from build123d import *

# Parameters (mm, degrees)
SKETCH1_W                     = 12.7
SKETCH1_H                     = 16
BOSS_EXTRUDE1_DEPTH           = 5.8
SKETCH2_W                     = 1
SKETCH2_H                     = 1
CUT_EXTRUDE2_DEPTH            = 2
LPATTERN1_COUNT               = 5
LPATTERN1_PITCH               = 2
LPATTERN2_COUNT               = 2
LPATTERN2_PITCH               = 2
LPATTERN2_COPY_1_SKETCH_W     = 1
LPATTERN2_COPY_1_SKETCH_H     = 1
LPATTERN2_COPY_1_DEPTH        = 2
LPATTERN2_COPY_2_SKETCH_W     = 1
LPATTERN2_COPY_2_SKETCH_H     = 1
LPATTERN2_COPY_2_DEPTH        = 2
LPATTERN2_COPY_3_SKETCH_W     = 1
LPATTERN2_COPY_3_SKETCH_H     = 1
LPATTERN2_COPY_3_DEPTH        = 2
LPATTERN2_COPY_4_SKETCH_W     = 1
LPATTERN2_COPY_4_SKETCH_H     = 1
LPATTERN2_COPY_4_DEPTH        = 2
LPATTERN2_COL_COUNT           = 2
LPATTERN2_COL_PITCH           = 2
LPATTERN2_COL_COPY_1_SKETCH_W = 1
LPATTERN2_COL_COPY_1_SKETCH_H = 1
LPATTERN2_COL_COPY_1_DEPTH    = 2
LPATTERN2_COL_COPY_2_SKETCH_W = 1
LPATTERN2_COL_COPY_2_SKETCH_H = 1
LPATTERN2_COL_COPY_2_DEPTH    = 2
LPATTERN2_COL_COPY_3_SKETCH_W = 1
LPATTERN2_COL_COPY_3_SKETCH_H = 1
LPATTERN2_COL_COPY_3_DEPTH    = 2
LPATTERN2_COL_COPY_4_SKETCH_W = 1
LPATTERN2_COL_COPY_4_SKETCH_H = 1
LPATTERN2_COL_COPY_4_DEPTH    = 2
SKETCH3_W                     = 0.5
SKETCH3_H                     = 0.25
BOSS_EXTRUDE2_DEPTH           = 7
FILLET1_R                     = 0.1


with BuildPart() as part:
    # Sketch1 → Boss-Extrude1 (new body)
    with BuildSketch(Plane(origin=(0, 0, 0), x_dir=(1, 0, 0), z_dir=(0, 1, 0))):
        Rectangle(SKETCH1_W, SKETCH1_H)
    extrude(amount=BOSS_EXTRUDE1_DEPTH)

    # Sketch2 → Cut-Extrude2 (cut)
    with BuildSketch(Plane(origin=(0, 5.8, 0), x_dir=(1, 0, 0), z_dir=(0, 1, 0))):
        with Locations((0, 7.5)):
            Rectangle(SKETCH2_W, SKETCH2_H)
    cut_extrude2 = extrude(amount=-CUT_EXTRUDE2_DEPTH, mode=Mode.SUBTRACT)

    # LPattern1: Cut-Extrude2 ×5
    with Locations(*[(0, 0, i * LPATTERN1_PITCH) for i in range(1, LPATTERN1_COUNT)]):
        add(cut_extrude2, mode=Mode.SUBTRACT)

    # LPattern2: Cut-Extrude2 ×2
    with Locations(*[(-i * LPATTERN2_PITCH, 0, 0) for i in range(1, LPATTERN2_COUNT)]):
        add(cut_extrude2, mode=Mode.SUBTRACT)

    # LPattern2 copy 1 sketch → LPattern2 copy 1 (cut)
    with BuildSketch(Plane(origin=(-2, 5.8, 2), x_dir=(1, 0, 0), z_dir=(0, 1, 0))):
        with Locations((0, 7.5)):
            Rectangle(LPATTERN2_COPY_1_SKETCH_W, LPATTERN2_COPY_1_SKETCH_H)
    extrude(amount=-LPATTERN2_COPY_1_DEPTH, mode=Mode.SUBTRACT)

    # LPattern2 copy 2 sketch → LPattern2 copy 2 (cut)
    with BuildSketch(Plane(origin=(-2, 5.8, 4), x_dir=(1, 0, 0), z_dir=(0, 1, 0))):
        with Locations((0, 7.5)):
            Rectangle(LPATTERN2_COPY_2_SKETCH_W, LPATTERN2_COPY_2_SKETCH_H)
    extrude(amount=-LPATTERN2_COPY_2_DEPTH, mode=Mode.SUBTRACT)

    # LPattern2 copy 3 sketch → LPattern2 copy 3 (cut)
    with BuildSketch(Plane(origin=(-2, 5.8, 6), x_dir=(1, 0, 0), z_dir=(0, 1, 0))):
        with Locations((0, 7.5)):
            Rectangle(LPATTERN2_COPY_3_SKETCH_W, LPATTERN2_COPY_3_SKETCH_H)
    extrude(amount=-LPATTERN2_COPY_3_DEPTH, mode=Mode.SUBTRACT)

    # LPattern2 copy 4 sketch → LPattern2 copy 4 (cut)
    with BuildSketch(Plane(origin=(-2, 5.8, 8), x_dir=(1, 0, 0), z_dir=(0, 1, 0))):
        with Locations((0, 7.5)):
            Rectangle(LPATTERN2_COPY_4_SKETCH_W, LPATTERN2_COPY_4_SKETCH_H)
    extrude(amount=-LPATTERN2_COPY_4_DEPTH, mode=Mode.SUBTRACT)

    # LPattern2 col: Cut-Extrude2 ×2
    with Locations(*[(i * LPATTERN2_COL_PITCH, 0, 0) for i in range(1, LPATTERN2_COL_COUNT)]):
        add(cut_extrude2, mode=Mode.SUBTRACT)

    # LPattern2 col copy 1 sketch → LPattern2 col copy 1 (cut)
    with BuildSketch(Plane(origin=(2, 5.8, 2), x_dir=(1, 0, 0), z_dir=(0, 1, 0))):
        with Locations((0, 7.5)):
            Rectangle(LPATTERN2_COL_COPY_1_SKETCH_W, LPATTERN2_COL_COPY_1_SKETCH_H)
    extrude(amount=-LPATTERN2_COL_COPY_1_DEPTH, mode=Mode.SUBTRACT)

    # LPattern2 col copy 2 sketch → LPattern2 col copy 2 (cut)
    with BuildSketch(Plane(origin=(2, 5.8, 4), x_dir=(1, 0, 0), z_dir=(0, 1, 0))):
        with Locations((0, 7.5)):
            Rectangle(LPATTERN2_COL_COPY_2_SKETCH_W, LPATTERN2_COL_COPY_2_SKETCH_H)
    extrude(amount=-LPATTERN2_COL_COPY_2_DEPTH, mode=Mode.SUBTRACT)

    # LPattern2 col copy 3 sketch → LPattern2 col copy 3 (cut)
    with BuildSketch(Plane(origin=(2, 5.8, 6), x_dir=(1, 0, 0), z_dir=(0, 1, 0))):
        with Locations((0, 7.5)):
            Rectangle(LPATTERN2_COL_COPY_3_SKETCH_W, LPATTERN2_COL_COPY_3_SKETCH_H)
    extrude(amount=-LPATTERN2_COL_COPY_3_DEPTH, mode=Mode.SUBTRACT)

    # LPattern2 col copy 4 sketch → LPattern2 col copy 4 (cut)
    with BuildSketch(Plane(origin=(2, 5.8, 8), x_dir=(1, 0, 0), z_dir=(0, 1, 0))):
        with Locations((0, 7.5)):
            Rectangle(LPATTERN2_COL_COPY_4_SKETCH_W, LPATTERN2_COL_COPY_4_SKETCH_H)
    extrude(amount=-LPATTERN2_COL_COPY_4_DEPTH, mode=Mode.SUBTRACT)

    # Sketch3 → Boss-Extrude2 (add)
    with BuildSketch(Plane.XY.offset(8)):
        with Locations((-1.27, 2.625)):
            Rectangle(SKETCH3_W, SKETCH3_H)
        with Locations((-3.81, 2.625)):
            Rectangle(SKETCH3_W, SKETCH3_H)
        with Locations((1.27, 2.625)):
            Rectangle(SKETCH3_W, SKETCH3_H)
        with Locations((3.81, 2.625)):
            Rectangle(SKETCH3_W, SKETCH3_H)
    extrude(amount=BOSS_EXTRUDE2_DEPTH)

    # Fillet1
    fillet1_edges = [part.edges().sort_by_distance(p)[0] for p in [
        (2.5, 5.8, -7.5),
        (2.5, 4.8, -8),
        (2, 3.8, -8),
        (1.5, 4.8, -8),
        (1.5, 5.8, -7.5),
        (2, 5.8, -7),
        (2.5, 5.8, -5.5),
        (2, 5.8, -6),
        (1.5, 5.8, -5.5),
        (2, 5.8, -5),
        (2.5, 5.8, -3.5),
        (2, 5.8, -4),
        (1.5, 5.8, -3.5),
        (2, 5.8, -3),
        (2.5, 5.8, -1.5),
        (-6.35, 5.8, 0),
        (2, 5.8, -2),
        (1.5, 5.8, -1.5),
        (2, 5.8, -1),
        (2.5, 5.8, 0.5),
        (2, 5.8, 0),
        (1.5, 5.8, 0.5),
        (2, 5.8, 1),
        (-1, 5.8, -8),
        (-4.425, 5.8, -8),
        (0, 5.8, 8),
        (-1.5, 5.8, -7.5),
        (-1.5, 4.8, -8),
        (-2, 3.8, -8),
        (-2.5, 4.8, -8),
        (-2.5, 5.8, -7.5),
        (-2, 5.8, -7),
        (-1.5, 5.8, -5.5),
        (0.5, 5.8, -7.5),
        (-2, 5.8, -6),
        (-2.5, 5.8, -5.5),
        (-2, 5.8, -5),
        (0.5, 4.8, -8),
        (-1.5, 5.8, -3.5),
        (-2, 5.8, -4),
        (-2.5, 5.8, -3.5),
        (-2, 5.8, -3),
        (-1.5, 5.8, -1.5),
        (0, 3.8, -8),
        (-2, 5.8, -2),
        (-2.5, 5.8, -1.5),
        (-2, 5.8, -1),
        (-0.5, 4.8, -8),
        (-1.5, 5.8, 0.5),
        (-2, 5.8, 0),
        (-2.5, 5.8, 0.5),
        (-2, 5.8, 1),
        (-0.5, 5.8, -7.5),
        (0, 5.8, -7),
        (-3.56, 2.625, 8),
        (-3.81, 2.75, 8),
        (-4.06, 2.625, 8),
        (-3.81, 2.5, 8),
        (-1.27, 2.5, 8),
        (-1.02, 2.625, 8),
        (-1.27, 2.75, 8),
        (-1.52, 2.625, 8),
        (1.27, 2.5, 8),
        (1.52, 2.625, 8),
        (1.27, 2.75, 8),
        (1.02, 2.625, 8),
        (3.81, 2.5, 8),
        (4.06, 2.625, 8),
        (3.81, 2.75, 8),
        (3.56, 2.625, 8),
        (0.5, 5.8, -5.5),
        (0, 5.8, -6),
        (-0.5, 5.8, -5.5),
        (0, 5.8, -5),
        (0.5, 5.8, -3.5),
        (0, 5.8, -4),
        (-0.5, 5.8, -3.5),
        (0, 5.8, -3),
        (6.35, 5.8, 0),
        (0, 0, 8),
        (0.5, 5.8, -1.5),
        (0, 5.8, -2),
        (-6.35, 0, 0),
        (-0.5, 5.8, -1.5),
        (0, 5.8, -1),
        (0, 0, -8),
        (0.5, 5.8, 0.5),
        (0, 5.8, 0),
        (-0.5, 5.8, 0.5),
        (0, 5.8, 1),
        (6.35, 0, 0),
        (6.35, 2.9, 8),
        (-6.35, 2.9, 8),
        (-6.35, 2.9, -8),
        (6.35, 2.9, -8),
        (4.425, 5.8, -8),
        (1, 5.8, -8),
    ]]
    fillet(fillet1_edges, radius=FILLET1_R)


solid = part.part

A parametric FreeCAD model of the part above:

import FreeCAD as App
import Part
import Sketcher

V = App.Vector
Q = App.Units.Quantity


def edges_at(feature, points):
    """Names of the edges that pass closest to the given points."""
    edges = feature.Shape.Edges
    near = lambda p: min(range(len(edges)), key=lambda i: edges[i].distToShape(Part.Vertex(*p))[0])
    return sorted({f"Edge{near(p) + 1}" for p in points})

doc = App.newDocument("Part")
params = doc.addObject("Spreadsheet::Sheet", "Params")
for row, (alias, value) in enumerate([
    ("sketch1_height", "16 mm"),
    ("sketch1_width", "12.7 mm"),
    ("pad1_length", "5.8 mm"),
    ("sketch2_width", "1 mm"),
    ("pocket1_length", "2 mm"),
    ("linearpattern_pitch", "2 mm"),
    ("linearpattern2_pitch", "2 mm"),
    ("sketch3_width", "1 mm"),
    ("pocket2_length", "2 mm"),
    ("sketch4_width", "1 mm"),
    ("pocket3_length", "2 mm"),
    ("sketch5_width", "1 mm"),
    ("pocket4_length", "2 mm"),
    ("sketch6_width", "1 mm"),
    ("pocket5_length", "2 mm"),
    ("linearpattern3_pitch", "2 mm"),
    ("sketch7_width", "1 mm"),
    ("pocket6_length", "2 mm"),
    ("sketch8_width", "1 mm"),
    ("pocket7_length", "2 mm"),
    ("sketch9_width", "1 mm"),
    ("pocket8_length", "2 mm"),
    ("sketch10_width", "1 mm"),
    ("pocket9_length", "2 mm"),
    ("sketch11_width", "0.5 mm"),
    ("sketch11_height", "0.25 mm"),
    ("pad2_length", "7 mm"),
    ("fillet_radius", "0.1 mm"),
], start=1):
    params.set(f"A{row}", alias)
    params.set(f"B{row}", "=" + value)
    params.setAlias(f"B{row}", alias)

body = doc.addObject("PartDesign::Body", "Body")

sketch1 = body.newObject("Sketcher::SketchObject", "Sketch")
sketch1.AttachmentSupport = (doc.getObject("XZ_Plane"), [""])
sketch1.MapMode = "FlatFace"
sketch1.addGeometry([
    Part.LineSegment(V(-6, -8, 0), V(-6, 8, 0)),
    Part.LineSegment(V(-6, 8, 0), V(6, 8, 0)),
    Part.LineSegment(V(6, 8, 0), V(6, -8, 0)),
    Part.LineSegment(V(6, -8, 0), V(-6, -8, 0)),
], False)
sketch1.addConstraint([
    Sketcher.Constraint("Coincident", 0, 2, 1, 1),
    Sketcher.Constraint("Coincident", 1, 2, 2, 1),
    Sketcher.Constraint("Coincident", 2, 2, 3, 1),
    Sketcher.Constraint("Coincident", 3, 2, 0, 1),
    Sketcher.Constraint("Vertical", 0),
    Sketcher.Constraint("Horizontal", 1),
    Sketcher.Constraint("Vertical", 2),
    Sketcher.Constraint("Horizontal", 3),
    Sketcher.Constraint("Symmetric", 0, 2, 2, 2, -1, 1),
    Sketcher.Constraint("DistanceY", 0, 1, 0, 2, Q("16 mm")),
    Sketcher.Constraint("DistanceX", 1, 1, 1, 2, Q("12.7 mm")),
])
sketch1.setExpression("Constraints[9]", "Params.sketch1_height")
sketch1.setExpression("Constraints[10]", "Params.sketch1_width")
pad1 = body.newObject("PartDesign::Pad", "Pad")
pad1.Profile = sketch1
pad1.setExpression("Length", "Params.pad1_length")
pad1.Reversed = True

sketch2 = body.newObject("Sketcher::SketchObject", "Sketch001")
sketch2.AttachmentSupport = (doc.getObject("XZ_Plane"), [""])
sketch2.MapMode = "FlatFace"
sketch2.AttachmentOffset = App.Placement(V(0, 0, -5.8), App.Rotation())
sketch2.addGeometry([
    Part.LineSegment(V(-0.5, -8, 0), V(-0.5, -7, 0)),
    Part.LineSegment(V(-0.5, -7, 0), V(0.5, -7, 0)),
    Part.LineSegment(V(0.5, -7, 0), V(0.5, -8, 0)),
    Part.LineSegment(V(0.5, -8, 0), V(-0.5, -8, 0)),
], False)
sketch2.addConstraint([
    Sketcher.Constraint("Coincident", 0, 2, 1, 1),
    Sketcher.Constraint("Coincident", 1, 2, 2, 1),
    Sketcher.Constraint("Coincident", 2, 2, 3, 1),
    Sketcher.Constraint("Coincident", 3, 2, 0, 1),
    Sketcher.Constraint("Vertical", 0),
    Sketcher.Constraint("Horizontal", 1),
    Sketcher.Constraint("Vertical", 2),
    Sketcher.Constraint("Horizontal", 3),
    Sketcher.Constraint("Equal", 3, 0),
    Sketcher.Constraint("DistanceX", 1, 1, 1, 2, Q("1 mm")),
    Sketcher.Constraint("DistanceY", 0, 2, -1, 1, Q("7 mm")),
    Sketcher.Constraint("DistanceX", 0, 2, -1, 1, Q("0.5 mm")),
])
sketch2.setExpression("Constraints[9]", "Params.sketch2_width")
pocket1 = body.newObject("PartDesign::Pocket", "Pocket")
pocket1.Profile = sketch2
pocket1.setExpression("Length", "Params.pocket1_length")
pocket1.Reversed = True
doc.recompute()

linearpattern = body.newObject("PartDesign::LinearPattern", "LinearPattern")
linearpattern.Originals = [pocket1]
linearpattern.Direction = (doc.getObject("Z_Axis"), [""])
linearpattern.Mode = "offset"
linearpattern.setExpression("Offset", "Params.linearpattern_pitch")
linearpattern.Occurrences = 5
body.Tip = linearpattern
doc.recompute()

linearpattern2 = body.newObject("PartDesign::LinearPattern", "LinearPattern001")
linearpattern2.Originals = [pocket1]
linearpattern2.Direction = (doc.getObject("X_Axis"), [""])
linearpattern2.Mode = "offset"
linearpattern2.setExpression("Offset", "Params.linearpattern2_pitch")
linearpattern2.Occurrences = 2
linearpattern2.Reversed = True
body.Tip = linearpattern2

sketch3 = body.newObject("Sketcher::SketchObject", "Sketch002")
sketch3.AttachmentSupport = (doc.getObject("XZ_Plane"), [""])
sketch3.MapMode = "FlatFace"
sketch3.AttachmentOffset = App.Placement(V(0, 0, -5.8), App.Rotation())
sketch3.addGeometry([
    Part.LineSegment(V(-2.5, -6, 0), V(-2.5, -5, 0)),
    Part.LineSegment(V(-2.5, -5, 0), V(-1.5, -5, 0)),
    Part.LineSegment(V(-1.5, -5, 0), V(-1.5, -6, 0)),
    Part.LineSegment(V(-1.5, -6, 0), V(-2.5, -6, 0)),
], False)
sketch3.addConstraint([
    Sketcher.Constraint("Coincident", 0, 2, 1, 1),
    Sketcher.Constraint("Coincident", 1, 2, 2, 1),
    Sketcher.Constraint("Coincident", 2, 2, 3, 1),
    Sketcher.Constraint("Coincident", 3, 2, 0, 1),
    Sketcher.Constraint("Vertical", 0),
    Sketcher.Constraint("Horizontal", 1),
    Sketcher.Constraint("Vertical", 2),
    Sketcher.Constraint("Horizontal", 3),
    Sketcher.Constraint("Equal", 3, 0),
    Sketcher.Constraint("DistanceX", 1, 1, 1, 2, Q("1 mm")),
    Sketcher.Constraint("DistanceY", 0, 2, -1, 1, Q("5 mm")),
    Sketcher.Constraint("DistanceX", 0, 2, -1, 1, Q("2.5 mm")),
])
sketch3.setExpression("Constraints[9]", "Params.sketch3_width")
pocket2 = body.newObject("PartDesign::Pocket", "Pocket001")
pocket2.Profile = sketch3
pocket2.setExpression("Length", "Params.pocket2_length")
pocket2.Reversed = True

sketch4 = body.newObject("Sketcher::SketchObject", "Sketch003")
sketch4.AttachmentSupport = (doc.getObject("XZ_Plane"), [""])
sketch4.MapMode = "FlatFace"
sketch4.AttachmentOffset = App.Placement(V(0, 0, -5.8), App.Rotation())
sketch4.addGeometry([
    Part.LineSegment(V(-2.5, -4, 0), V(-2.5, -3, 0)),
    Part.LineSegment(V(-2.5, -3, 0), V(-1.5, -3, 0)),
    Part.LineSegment(V(-1.5, -3, 0), V(-1.5, -4, 0)),
    Part.LineSegment(V(-1.5, -4, 0), V(-2.5, -4, 0)),
], False)
sketch4.addConstraint([
    Sketcher.Constraint("Coincident", 0, 2, 1, 1),
    Sketcher.Constraint("Coincident", 1, 2, 2, 1),
    Sketcher.Constraint("Coincident", 2, 2, 3, 1),
    Sketcher.Constraint("Coincident", 3, 2, 0, 1),
    Sketcher.Constraint("Vertical", 0),
    Sketcher.Constraint("Horizontal", 1),
    Sketcher.Constraint("Vertical", 2),
    Sketcher.Constraint("Horizontal", 3),
    Sketcher.Constraint("Equal", 3, 0),
    Sketcher.Constraint("DistanceX", 1, 1, 1, 2, Q("1 mm")),
    Sketcher.Constraint("DistanceY", 0, 2, -1, 1, Q("3 mm")),
    Sketcher.Constraint("DistanceX", 0, 2, -1, 1, Q("2.5 mm")),
])
sketch4.setExpression("Constraints[9]", "Params.sketch4_width")
pocket3 = body.newObject("PartDesign::Pocket", "Pocket002")
pocket3.Profile = sketch4
pocket3.setExpression("Length", "Params.pocket3_length")
pocket3.Reversed = True

sketch5 = body.newObject("Sketcher::SketchObject", "Sketch004")
sketch5.AttachmentSupport = (doc.getObject("XZ_Plane"), [""])
sketch5.MapMode = "FlatFace"
sketch5.AttachmentOffset = App.Placement(V(0, 0, -5.8), App.Rotation())
sketch5.addGeometry([
    Part.LineSegment(V(-2.5, -2, 0), V(-2.5, -1, 0)),
    Part.LineSegment(V(-2.5, -1, 0), V(-1.5, -1, 0)),
    Part.LineSegment(V(-1.5, -1, 0), V(-1.5, -2, 0)),
    Part.LineSegment(V(-1.5, -2, 0), V(-2.5, -2, 0)),
], False)
sketch5.addConstraint([
    Sketcher.Constraint("Coincident", 0, 2, 1, 1),
    Sketcher.Constraint("Coincident", 1, 2, 2, 1),
    Sketcher.Constraint("Coincident", 2, 2, 3, 1),
    Sketcher.Constraint("Coincident", 3, 2, 0, 1),
    Sketcher.Constraint("Vertical", 0),
    Sketcher.Constraint("Horizontal", 1),
    Sketcher.Constraint("Vertical", 2),
    Sketcher.Constraint("Horizontal", 3),
    Sketcher.Constraint("Equal", 3, 0),
    Sketcher.Constraint("DistanceX", 1, 1, 1, 2, Q("1 mm")),
    Sketcher.Constraint("DistanceY", 0, 2, -1, 1, Q("1 mm")),
    Sketcher.Constraint("DistanceX", 0, 2, -1, 1, Q("2.5 mm")),
])
sketch5.setExpression("Constraints[9]", "Params.sketch5_width")
pocket4 = body.newObject("PartDesign::Pocket", "Pocket003")
pocket4.Profile = sketch5
pocket4.setExpression("Length", "Params.pocket4_length")
pocket4.Reversed = True

sketch6 = body.newObject("Sketcher::SketchObject", "Sketch005")
sketch6.AttachmentSupport = (doc.getObject("XZ_Plane"), [""])
sketch6.MapMode = "FlatFace"
sketch6.AttachmentOffset = App.Placement(V(0, 0, -5.8), App.Rotation())
sketch6.addGeometry([
    Part.LineSegment(V(-2.5, 0, 0), V(-2.5, 1, 0)),
    Part.LineSegment(V(-2.5, 1, 0), V(-1.5, 1, 0)),
    Part.LineSegment(V(-1.5, 1, 0), V(-1.5, 0, 0)),
    Part.LineSegment(V(-1.5, 0, 0), V(-2.5, 0, 0)),
], False)
sketch6.addConstraint([
    Sketcher.Constraint("Coincident", 0, 2, 1, 1),
    Sketcher.Constraint("Coincident", 1, 2, 2, 1),
    Sketcher.Constraint("Coincident", 2, 2, 3, 1),
    Sketcher.Constraint("Coincident", 3, 2, 0, 1),
    Sketcher.Constraint("Vertical", 0),
    Sketcher.Constraint("Horizontal", 1),
    Sketcher.Constraint("Vertical", 2),
    Sketcher.Constraint("Horizontal", 3),
    Sketcher.Constraint("PointOnObject", 2, 2, -1),
    Sketcher.Constraint("Equal", 3, 0),
    Sketcher.Constraint("DistanceX", 1, 1, 1, 2, Q("1 mm")),
    Sketcher.Constraint("DistanceX", 0, 2, -1, 1, Q("2.5 mm")),
])
sketch6.setExpression("Constraints[10]", "Params.sketch6_width")
pocket5 = body.newObject("PartDesign::Pocket", "Pocket004")
pocket5.Profile = sketch6
pocket5.setExpression("Length", "Params.pocket5_length")
pocket5.Reversed = True
doc.recompute()

linearpattern3 = body.newObject("PartDesign::LinearPattern", "LinearPattern002")
linearpattern3.Originals = [pocket1]
linearpattern3.Direction = (doc.getObject("X_Axis"), [""])
linearpattern3.Mode = "offset"
linearpattern3.setExpression("Offset", "Params.linearpattern3_pitch")
linearpattern3.Occurrences = 2
body.Tip = linearpattern3

sketch7 = body.newObject("Sketcher::SketchObject", "Sketch006")
sketch7.AttachmentSupport = (doc.getObject("XZ_Plane"), [""])
sketch7.MapMode = "FlatFace"
sketch7.AttachmentOffset = App.Placement(V(0, 0, -5.8), App.Rotation())
sketch7.addGeometry([
    Part.LineSegment(V(1.5, -6, 0), V(1.5, -5, 0)),
    Part.LineSegment(V(1.5, -5, 0), V(2.5, -5, 0)),
    Part.LineSegment(V(2.5, -5, 0), V(2.5, -6, 0)),
    Part.LineSegment(V(2.5, -6, 0), V(1.5, -6, 0)),
], False)
sketch7.addConstraint([
    Sketcher.Constraint("Coincident", 0, 2, 1, 1),
    Sketcher.Constraint("Coincident", 1, 2, 2, 1),
    Sketcher.Constraint("Coincident", 2, 2, 3, 1),
    Sketcher.Constraint("Coincident", 3, 2, 0, 1),
    Sketcher.Constraint("Vertical", 0),
    Sketcher.Constraint("Horizontal", 1),
    Sketcher.Constraint("Vertical", 2),
    Sketcher.Constraint("Horizontal", 3),
    Sketcher.Constraint("Equal", 3, 0),
    Sketcher.Constraint("DistanceX", 1, 1, 1, 2, Q("1 mm")),
    Sketcher.Constraint("DistanceY", 0, 2, -1, 1, Q("5 mm")),
    Sketcher.Constraint("DistanceX", -1, 1, 0, 2, Q("1.5 mm")),
])
sketch7.setExpression("Constraints[9]", "Params.sketch7_width")
pocket6 = body.newObject("PartDesign::Pocket", "Pocket005")
pocket6.Profile = sketch7
pocket6.setExpression("Length", "Params.pocket6_length")
pocket6.Reversed = True

sketch8 = body.newObject("Sketcher::SketchObject", "Sketch007")
sketch8.AttachmentSupport = (doc.getObject("XZ_Plane"), [""])
sketch8.MapMode = "FlatFace"
sketch8.AttachmentOffset = App.Placement(V(0, 0, -5.8), App.Rotation())
sketch8.addGeometry([
    Part.LineSegment(V(1.5, -4, 0), V(1.5, -3, 0)),
    Part.LineSegment(V(1.5, -3, 0), V(2.5, -3, 0)),
    Part.LineSegment(V(2.5, -3, 0), V(2.5, -4, 0)),
    Part.LineSegment(V(2.5, -4, 0), V(1.5, -4, 0)),
], False)
sketch8.addConstraint([
    Sketcher.Constraint("Coincident", 0, 2, 1, 1),
    Sketcher.Constraint("Coincident", 1, 2, 2, 1),
    Sketcher.Constraint("Coincident", 2, 2, 3, 1),
    Sketcher.Constraint("Coincident", 3, 2, 0, 1),
    Sketcher.Constraint("Vertical", 0),
    Sketcher.Constraint("Horizontal", 1),
    Sketcher.Constraint("Vertical", 2),
    Sketcher.Constraint("Horizontal", 3),
    Sketcher.Constraint("Equal", 3, 0),
    Sketcher.Constraint("DistanceX", 1, 1, 1, 2, Q("1 mm")),
    Sketcher.Constraint("DistanceY", 0, 2, -1, 1, Q("3 mm")),
    Sketcher.Constraint("DistanceX", -1, 1, 0, 2, Q("1.5 mm")),
])
sketch8.setExpression("Constraints[9]", "Params.sketch8_width")
pocket7 = body.newObject("PartDesign::Pocket", "Pocket006")
pocket7.Profile = sketch8
pocket7.setExpression("Length", "Params.pocket7_length")
pocket7.Reversed = True

sketch9 = body.newObject("Sketcher::SketchObject", "Sketch008")
sketch9.AttachmentSupport = (doc.getObject("XZ_Plane"), [""])
sketch9.MapMode = "FlatFace"
sketch9.AttachmentOffset = App.Placement(V(0, 0, -5.8), App.Rotation())
sketch9.addGeometry([
    Part.LineSegment(V(1.5, -2, 0), V(1.5, -1, 0)),
    Part.LineSegment(V(1.5, -1, 0), V(2.5, -1, 0)),
    Part.LineSegment(V(2.5, -1, 0), V(2.5, -2, 0)),
    Part.LineSegment(V(2.5, -2, 0), V(1.5, -2, 0)),
], False)
sketch9.addConstraint([
    Sketcher.Constraint("Coincident", 0, 2, 1, 1),
    Sketcher.Constraint("Coincident", 1, 2, 2, 1),
    Sketcher.Constraint("Coincident", 2, 2, 3, 1),
    Sketcher.Constraint("Coincident", 3, 2, 0, 1),
    Sketcher.Constraint("Vertical", 0),
    Sketcher.Constraint("Horizontal", 1),
    Sketcher.Constraint("Vertical", 2),
    Sketcher.Constraint("Horizontal", 3),
    Sketcher.Constraint("Equal", 3, 0),
    Sketcher.Constraint("DistanceX", 1, 1, 1, 2, Q("1 mm")),
    Sketcher.Constraint("DistanceY", 0, 2, -1, 1, Q("1 mm")),
    Sketcher.Constraint("DistanceX", -1, 1, 0, 2, Q("1.5 mm")),
])
sketch9.setExpression("Constraints[9]", "Params.sketch9_width")
pocket8 = body.newObject("PartDesign::Pocket", "Pocket007")
pocket8.Profile = sketch9
pocket8.setExpression("Length", "Params.pocket8_length")
pocket8.Reversed = True

sketch10 = body.newObject("Sketcher::SketchObject", "Sketch009")
sketch10.AttachmentSupport = (doc.getObject("XZ_Plane"), [""])
sketch10.MapMode = "FlatFace"
sketch10.AttachmentOffset = App.Placement(V(0, 0, -5.8), App.Rotation())
sketch10.addGeometry([
    Part.LineSegment(V(1.5, 0, 0), V(1.5, 1, 0)),
    Part.LineSegment(V(1.5, 1, 0), V(2.5, 1, 0)),
    Part.LineSegment(V(2.5, 1, 0), V(2.5, 0, 0)),
    Part.LineSegment(V(2.5, 0, 0), V(1.5, 0, 0)),
], False)
sketch10.addConstraint([
    Sketcher.Constraint("Coincident", 0, 2, 1, 1),
    Sketcher.Constraint("Coincident", 1, 2, 2, 1),
    Sketcher.Constraint("Coincident", 2, 2, 3, 1),
    Sketcher.Constraint("Coincident", 3, 2, 0, 1),
    Sketcher.Constraint("Vertical", 0),
    Sketcher.Constraint("Horizontal", 1),
    Sketcher.Constraint("Vertical", 2),
    Sketcher.Constraint("Horizontal", 3),
    Sketcher.Constraint("PointOnObject", 2, 2, -1),
    Sketcher.Constraint("Equal", 3, 0),
    Sketcher.Constraint("DistanceX", 1, 1, 1, 2, Q("1 mm")),
    Sketcher.Constraint("DistanceX", -1, 1, 0, 2, Q("1.5 mm")),
])
sketch10.setExpression("Constraints[10]", "Params.sketch10_width")
pocket9 = body.newObject("PartDesign::Pocket", "Pocket008")
pocket9.Profile = sketch10
pocket9.setExpression("Length", "Params.pocket9_length")
pocket9.Reversed = True

sketch11 = body.newObject("Sketcher::SketchObject", "Sketch010")
sketch11.AttachmentSupport = (doc.getObject("XY_Plane"), [""])
sketch11.MapMode = "FlatFace"
sketch11.AttachmentOffset = App.Placement(V(0, 0, 8), App.Rotation())
sketch11.addGeometry([
    Part.LineSegment(V(-1.52, 2.75, 0), V(-1.52, 2.5, 0)),
    Part.LineSegment(V(-1.52, 2.5, 0), V(-1.02, 2.5, 0)),
    Part.LineSegment(V(-1.02, 2.5, 0), V(-1.02, 2.75, 0)),
    Part.LineSegment(V(-1.02, 2.75, 0), V(-1.52, 2.75, 0)),
    Part.LineSegment(V(-4.06, 2.75, 0), V(-4.06, 2.5, 0)),
    Part.LineSegment(V(-4.06, 2.5, 0), V(-3.56, 2.5, 0)),
    Part.LineSegment(V(-3.56, 2.5, 0), V(-3.56, 2.75, 0)),
    Part.LineSegment(V(-3.56, 2.75, 0), V(-4.06, 2.75, 0)),
    Part.LineSegment(V(1.02, 2.75, 0), V(1.02, 2.5, 0)),
    Part.LineSegment(V(1.02, 2.5, 0), V(1.52, 2.5, 0)),
    Part.LineSegment(V(1.52, 2.5, 0), V(1.52, 2.75, 0)),
    Part.LineSegment(V(1.52, 2.75, 0), V(1.02, 2.75, 0)),
    Part.LineSegment(V(3.56, 2.75, 0), V(3.56, 2.5, 0)),
    Part.LineSegment(V(3.56, 2.5, 0), V(4.06, 2.5, 0)),
    Part.LineSegment(V(4.06, 2.5, 0), V(4.06, 2.75, 0)),
    Part.LineSegment(V(4.06, 2.75, 0), V(3.56, 2.75, 0)),
], False)
sketch11.addConstraint([
    Sketcher.Constraint("Coincident", 0, 2, 1, 1),
    Sketcher.Constraint("Coincident", 1, 2, 2, 1),
    Sketcher.Constraint("Coincident", 2, 2, 3, 1),
    Sketcher.Constraint("Coincident", 3, 2, 0, 1),
    Sketcher.Constraint("Coincident", 4, 2, 5, 1),
    Sketcher.Constraint("Coincident", 5, 2, 6, 1),
    Sketcher.Constraint("Coincident", 6, 2, 7, 1),
    Sketcher.Constraint("Coincident", 7, 2, 4, 1),
    Sketcher.Constraint("Coincident", 8, 2, 9, 1),
    Sketcher.Constraint("Coincident", 9, 2, 10, 1),
    Sketcher.Constraint("Coincident", 10, 2, 11, 1),
    Sketcher.Constraint("Coincident", 11, 2, 8, 1),
    Sketcher.Constraint("Coincident", 12, 2, 13, 1),
    Sketcher.Constraint("Coincident", 13, 2, 14, 1),
    Sketcher.Constraint("Coincident", 14, 2, 15, 1),
    Sketcher.Constraint("Coincident", 15, 2, 12, 1),
    Sketcher.Constraint("Vertical", 0),
    Sketcher.Constraint("Horizontal", 1),
    Sketcher.Constraint("Vertical", 2),
    Sketcher.Constraint("Horizontal", 3),
    Sketcher.Constraint("Vertical", 4),
    Sketcher.Constraint("Horizontal", 5),
    Sketcher.Constraint("Vertical", 6),
    Sketcher.Constraint("Horizontal", 7),
    Sketcher.Constraint("Vertical", 8),
    Sketcher.Constraint("Horizontal", 9),
    Sketcher.Constraint("Vertical", 10),
    Sketcher.Constraint("Horizontal", 11),
    Sketcher.Constraint("Vertical", 12),
    Sketcher.Constraint("Horizontal", 13),
    Sketcher.Constraint("Vertical", 14),
    Sketcher.Constraint("Horizontal", 15),
    Sketcher.Constraint("Symmetric", 1, 2, 8, 2, -2),
    Sketcher.Constraint("Symmetric", 3, 2, 10, 2, -2),
    Sketcher.Constraint("Symmetric", 5, 2, 12, 2, -2),
    Sketcher.Constraint("Symmetric", 7, 2, 14, 2, -2),
    Sketcher.Constraint("Horizontal", 1, 2, 4, 2),
    Sketcher.Constraint("Horizontal", 3, 2, 6, 2),
    Sketcher.Constraint("Equal", 3, 5),
    Sketcher.Constraint("DistanceX", 1, 1, 1, 2, Q("0.5 mm")),
    Sketcher.Constraint("DistanceY", 0, 2, 0, 1, Q("0.25 mm")),
    Sketcher.Constraint("DistanceY", -1, 1, 0, 2, Q("2.5 mm")),
    Sketcher.Constraint("DistanceX", 0, 2, -1, 1, Q("1.52 mm")),
    Sketcher.Constraint("DistanceX", 4, 2, -1, 1, Q("4.06 mm")),
])
sketch11.setExpression("Constraints[39]", "Params.sketch11_width")
sketch11.setExpression("Constraints[40]", "Params.sketch11_height")
pad2 = body.newObject("PartDesign::Pad", "Pad001")
pad2.Profile = sketch11
pad2.setExpression("Length", "Params.pad2_length")
doc.recompute()

fillet = body.newObject("PartDesign::Fillet", "Fillet")
fillet.Base = (pad2, edges_at(pad2, [
    (2.5, 5.8, -7.5),
    (2.5, 4.8, -8),
    (2, 3.8, -8),
    (1.5, 4.8, -8),
    (1.5, 5.8, -7.5),
    (2, 5.8, -7),
    (2.5, 5.8, -5.5),
    (2, 5.8, -6),
    (1.5, 5.8, -5.5),
    (2, 5.8, -5),
    (2.5, 5.8, -3.5),
    (2, 5.8, -4),
    (1.5, 5.8, -3.5),
    (2, 5.8, -3),
    (2.5, 5.8, -1.5),
    (-6.35, 5.8, 0),
    (2, 5.8, -2),
    (1.5, 5.8, -1.5),
    (2, 5.8, -1),
    (2.5, 5.8, 0.5),
    (2, 5.8, 0),
    (1.5, 5.8, 0.5),
    (2, 5.8, 1),
    (-1, 5.8, -8),
    (-4.425, 5.8, -8),
    (0, 5.8, 8),
    (-1.5, 5.8, -7.5),
    (-1.5, 4.8, -8),
    (-2, 3.8, -8),
    (-2.5, 4.8, -8),
    (-2.5, 5.8, -7.5),
    (-2, 5.8, -7),
    (-1.5, 5.8, -5.5),
    (0.5, 5.8, -7.5),
    (-2, 5.8, -6),
    (-2.5, 5.8, -5.5),
    (-2, 5.8, -5),
    (0.5, 4.8, -8),
    (-1.5, 5.8, -3.5),
    (-2, 5.8, -4),
    (-2.5, 5.8, -3.5),
    (-2, 5.8, -3),
    (-1.5, 5.8, -1.5),
    (0, 3.8, -8),
    (-2, 5.8, -2),
    (-2.5, 5.8, -1.5),
    (-2, 5.8, -1),
    (-0.5, 4.8, -8),
    (-1.5, 5.8, 0.5),
    (-2, 5.8, 0),
    (-2.5, 5.8, 0.5),
    (-2, 5.8, 1),
    (-0.5, 5.8, -7.5),
    (0, 5.8, -7),
    (-3.56, 2.625, 8),
    (-3.81, 2.75, 8),
    (-4.06, 2.625, 8),
    (-3.81, 2.5, 8),
    (-1.27, 2.5, 8),
    (-1.02, 2.625, 8),
    (-1.27, 2.75, 8),
    (-1.52, 2.625, 8),
    (1.27, 2.5, 8),
    (1.52, 2.625, 8),
    (1.27, 2.75, 8),
    (1.02, 2.625, 8),
    (3.81, 2.5, 8),
    (4.06, 2.625, 8),
    (3.81, 2.75, 8),
    (3.56, 2.625, 8),
    (0.5, 5.8, -5.5),
    (0, 5.8, -6),
    (-0.5, 5.8, -5.5),
    (0, 5.8, -5),
    (0.5, 5.8, -3.5),
    (0, 5.8, -4),
    (-0.5, 5.8, -3.5),
    (0, 5.8, -3),
    (6.35, 5.8, 0),
    (0, 0, 8),
    (0.5, 5.8, -1.5),
    (0, 5.8, -2),
    (-6.35, 0, 0),
    (-0.5, 5.8, -1.5),
    (0, 5.8, -1),
    (0, 0, -8),
    (0.5, 5.8, 0.5),
    (0, 5.8, 0),
    (-0.5, 5.8, 0.5),
    (0, 5.8, 1),
    (6.35, 0, 0),
    (6.35, 2.9, 8),
    (-6.35, 2.9, 8),
    (-6.35, 2.9, -8),
    (6.35, 2.9, -8),
    (4.425, 5.8, -8),
    (1, 5.8, -8),
]))
fillet.setExpression("Radius", "Params.fillet_radius")

doc.recompute()
